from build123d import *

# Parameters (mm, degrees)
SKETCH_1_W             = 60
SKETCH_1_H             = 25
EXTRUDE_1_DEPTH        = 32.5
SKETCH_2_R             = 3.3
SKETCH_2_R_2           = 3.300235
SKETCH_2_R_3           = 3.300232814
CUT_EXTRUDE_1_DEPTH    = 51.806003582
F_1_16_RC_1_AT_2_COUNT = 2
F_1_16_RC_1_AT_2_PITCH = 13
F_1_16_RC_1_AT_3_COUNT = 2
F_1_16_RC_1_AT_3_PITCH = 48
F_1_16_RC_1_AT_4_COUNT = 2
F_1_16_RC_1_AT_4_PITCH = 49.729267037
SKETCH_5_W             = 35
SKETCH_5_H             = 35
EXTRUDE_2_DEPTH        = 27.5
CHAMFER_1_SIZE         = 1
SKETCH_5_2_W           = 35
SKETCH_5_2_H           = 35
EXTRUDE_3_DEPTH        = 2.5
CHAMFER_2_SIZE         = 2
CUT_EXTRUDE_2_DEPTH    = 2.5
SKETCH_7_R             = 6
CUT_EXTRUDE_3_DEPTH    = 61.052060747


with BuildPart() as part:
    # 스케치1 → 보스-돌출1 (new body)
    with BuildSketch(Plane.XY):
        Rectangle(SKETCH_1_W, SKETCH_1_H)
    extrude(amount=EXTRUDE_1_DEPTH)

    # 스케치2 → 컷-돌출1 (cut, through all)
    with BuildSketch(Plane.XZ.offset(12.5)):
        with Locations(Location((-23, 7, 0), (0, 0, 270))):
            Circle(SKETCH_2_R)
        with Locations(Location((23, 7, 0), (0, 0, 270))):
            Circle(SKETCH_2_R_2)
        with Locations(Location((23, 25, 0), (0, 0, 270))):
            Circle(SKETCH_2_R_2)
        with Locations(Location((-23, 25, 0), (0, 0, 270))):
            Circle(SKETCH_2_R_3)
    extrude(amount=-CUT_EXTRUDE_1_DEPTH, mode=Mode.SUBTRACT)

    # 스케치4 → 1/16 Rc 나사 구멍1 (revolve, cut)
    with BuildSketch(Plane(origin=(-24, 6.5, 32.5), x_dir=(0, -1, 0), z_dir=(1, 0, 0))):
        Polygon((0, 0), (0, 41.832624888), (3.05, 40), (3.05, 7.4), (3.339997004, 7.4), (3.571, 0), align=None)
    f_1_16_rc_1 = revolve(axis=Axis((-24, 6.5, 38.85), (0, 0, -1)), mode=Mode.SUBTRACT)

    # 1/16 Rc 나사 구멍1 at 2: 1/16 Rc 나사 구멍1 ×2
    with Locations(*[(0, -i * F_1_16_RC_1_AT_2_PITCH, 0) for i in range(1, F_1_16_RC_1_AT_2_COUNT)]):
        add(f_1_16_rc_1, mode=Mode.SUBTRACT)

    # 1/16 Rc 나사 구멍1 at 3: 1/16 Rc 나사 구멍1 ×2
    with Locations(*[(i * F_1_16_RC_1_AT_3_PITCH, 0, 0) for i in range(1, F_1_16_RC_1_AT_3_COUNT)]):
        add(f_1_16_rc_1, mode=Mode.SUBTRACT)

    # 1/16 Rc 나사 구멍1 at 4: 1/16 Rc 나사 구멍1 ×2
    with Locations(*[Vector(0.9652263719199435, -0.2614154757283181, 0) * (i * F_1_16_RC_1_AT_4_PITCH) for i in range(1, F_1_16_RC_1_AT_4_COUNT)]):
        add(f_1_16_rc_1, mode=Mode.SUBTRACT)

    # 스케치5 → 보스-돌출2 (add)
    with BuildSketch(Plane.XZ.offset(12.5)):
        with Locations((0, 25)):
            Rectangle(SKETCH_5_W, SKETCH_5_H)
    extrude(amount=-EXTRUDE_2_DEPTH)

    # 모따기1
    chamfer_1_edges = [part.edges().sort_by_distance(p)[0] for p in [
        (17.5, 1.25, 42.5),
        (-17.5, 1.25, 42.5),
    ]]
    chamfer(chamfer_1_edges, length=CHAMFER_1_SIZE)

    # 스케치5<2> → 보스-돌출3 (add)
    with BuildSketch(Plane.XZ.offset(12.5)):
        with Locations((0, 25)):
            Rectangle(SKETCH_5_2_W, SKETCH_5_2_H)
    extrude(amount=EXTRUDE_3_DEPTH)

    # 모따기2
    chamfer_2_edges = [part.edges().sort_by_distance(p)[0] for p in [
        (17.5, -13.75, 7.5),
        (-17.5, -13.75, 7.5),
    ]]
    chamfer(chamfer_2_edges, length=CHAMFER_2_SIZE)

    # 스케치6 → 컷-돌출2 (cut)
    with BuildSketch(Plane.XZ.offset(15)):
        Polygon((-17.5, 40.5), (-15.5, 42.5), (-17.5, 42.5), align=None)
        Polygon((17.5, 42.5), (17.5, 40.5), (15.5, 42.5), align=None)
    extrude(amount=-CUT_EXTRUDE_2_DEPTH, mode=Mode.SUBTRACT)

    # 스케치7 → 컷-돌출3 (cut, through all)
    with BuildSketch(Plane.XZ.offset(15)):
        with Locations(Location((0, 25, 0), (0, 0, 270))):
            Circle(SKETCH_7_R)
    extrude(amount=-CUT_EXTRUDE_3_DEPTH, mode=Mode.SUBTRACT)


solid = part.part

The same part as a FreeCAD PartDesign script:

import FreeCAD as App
import Part
import Sketcher
from FreeCAD import Vector
Q = App.Units.Quantity


def edges_at(feature, points):
    """Names of the edges that pass closest to the given points."""
    edges = feature.Shape.Edges
    near = lambda p: min(range(len(edges)), key=lambda i: edges[i].distToShape(Part.Vertex(*p))[0])
    return sorted({f"Edge{near(p) + 1}" for p in points})


def add_polygon(sketch, points):
    """Adds a closed chain of lines whose ends are joined by coincident constraints."""
    first, n = sketch.GeometryCount, len(points)
    for a, b in zip(points, points[1:] + points[:1]):
        sketch.addGeometry(Part.LineSegment(App.Vector(*a, 0), App.Vector(*b, 0)), False)
    for i in range(n):
        sketch.addConstraint(Sketcher.Constraint("Coincident", first + i, 2, first + (i + 1) % n, 1))

doc = App.newDocument("Part")
body = doc.addObject("PartDesign::Body", "Body")

sketch1 = body.newObject("Sketcher::SketchObject", "Sketch")
sketch1.AttachmentSupport = (doc.getObject("XY_Plane"), [""])
sketch1.MapMode = "FlatFace"
add_polygon(sketch1, [(-30, 12), (-30, -12), (30, -12), (30, 12)])
sketch1.addConstraint(Sketcher.Constraint("Vertical", 0))
sketch1.addConstraint(Sketcher.Constraint("Horizontal", 1))
sketch1.addConstraint(Sketcher.Constraint("Vertical", 2))
sketch1.addConstraint(Sketcher.Constraint("Horizontal", 3))
sketch1.addConstraint(Sketcher.Constraint("Symmetric", 0, 2, 2, 2, -1, 1))
sketch1.addConstraint(Sketcher.Constraint("DistanceX", 1, 1, 1, 2, 60.0))
sketch1.addConstraint(Sketcher.Constraint("DistanceY", 0, 2, 0, 1, 25.0))
pad1 = body.newObject("PartDesign::Pad", "Pad")
pad1.Profile = sketch1
pad1.Length = 32.5

sketch2 = body.newObject("Sketcher::SketchObject", "Sketch001")
sketch2.AttachmentSupport = (doc.getObject("XZ_Plane"), [""])
sketch2.MapMode = "FlatFace"
sketch2.AttachmentOffset = App.Placement(Vector(0, 0, 12.5), App.Rotation())
sketch2.addGeometry(Part.Circle(Vector(-23, 7, 0), Vector(0, 0, 1), 3.3), False)
sketch2.addGeometry(Part.Circle(Vector(23, 7, 0), Vector(0, 0, 1), 3.3), False)
sketch2.addGeometry(Part.Circle(Vector(23, 25, 0), Vector(0, 0, 1), 3.3), False)
sketch2.addGeometry(Part.Circle(Vector(-23, 25, 0), Vector(0, 0, 1), 3.3), False)
sketch2.addConstraint(Sketcher.Constraint("Equal", 1, 2))
sketch2.addConstraint(Sketcher.Constraint("Symmetric", 0, 3, 1, 3, -2))
sketch2.addConstraint(Sketcher.Constraint("Symmetric", 2, 3, 3, 3, -2))
sketch2.addConstraint(Sketcher.Constraint("Vertical", 1, 3, 2, 3))
sketch2.addConstraint(Sketcher.Constraint("Diameter", 0, 6.6))
sketch2.addConstraint(Sketcher.Constraint("DistanceX", 0, 3, -1, 1, 23.0))
sketch2.addConstraint(Sketcher.Constraint("DistanceY", -1, 1, 0, 3, 7.0))
sketch2.addConstraint(Sketcher.Constraint("DistanceY", -1, 1, 2, 3, 25.0))
sketch2.addConstraint(Sketcher.Constraint("Diameter", 1, 6.60047))
sketch2.addConstraint(Sketcher.Constraint("Diameter", 3, 6.600466))
pocket1 = body.newObject("PartDesign::Pocket", "Pocket")
pocket1.Profile = sketch2
pocket1.Type = "ThroughAll"

sketch3 = body.newObject("Sketcher::SketchObject", "Sketch002")
sketch3.AttachmentSupport = (doc.getObject("YZ_Plane"), [""])
sketch3.MapMode = "FlatFace"
sketch3.AttachmentOffset = App.Placement(Vector(0, 0, -24), App.Rotation())
add_polygon(sketch3, [(6.5, -9.33), (6.5, 32.5), (2.93, 32.5), (3.16, 25.1), (3.45, 25.1), (3.45, -7.5)])
sketch3.addGeometry(Part.LineSegment(Vector(6.5, 32.5, 0), Vector(6.5, -9.33, 0)), True)
sketch3.addConstraint(Sketcher.Constraint("Vertical", 0))
sketch3.addConstraint(Sketcher.Constraint("Horizontal", 1))
sketch3.addConstraint(Sketcher.Constraint("Horizontal", 3))
sketch3.addConstraint(Sketcher.Constraint("Vertical", 4))
sketch3.addConstraint(Sketcher.Constraint("Vertical", 6))
sketch3.addConstraint(Sketcher.Constraint("Coincident", 6, 1, 0, 2))
sketch3.addConstraint(Sketcher.Constraint("Equal", 0, 6))
sketch3.addConstraint(Sketcher.Constraint("Angle", 5, Q("-31 deg")))
sketch3.addConstraint(Sketcher.Constraint("DistanceY", 4, 2, 4, 1, 32.6))
sketch3.addConstraint(Sketcher.Constraint("DistanceY", 4, 2, 1, 2, 40.0))
sketch3.addConstraint(Sketcher.Constraint("DistanceX", -1, 1, 0, 2, 6.5))
sketch3.addConstraint(Sketcher.Constraint("DistanceY", -1, 1, 0, 2, 32.5))
sketch3.addConstraint(Sketcher.Constraint("DistanceX", 1, 2, 1, 1, 3.571))
sketch3.addConstraint(Sketcher.Constraint("DistanceX", -1, 1, 3, 2, 3.45))
sketch3.addConstraint(Sketcher.Constraint("DistanceX", 3, 1, 3, 2, 0.289997))
groove = body.newObject("PartDesign::Groove", "Groove")
groove.Profile = sketch3
groove.ReferenceAxis = (sketch3, ["Axis0"])
groove.Angle = 360
doc.recompute()

linearpattern = body.newObject("PartDesign::LinearPattern", "LinearPattern")
linearpattern.Originals = [groove]
linearpattern.Direction = (doc.getObject("Y_Axis"), [""])
linearpattern.Mode = "offset"
linearpattern.Offset = 13
linearpattern.Occurrences = 2
linearpattern.Reversed = True
body.Tip = linearpattern
doc.recompute()

linearpattern2 = body.newObject("PartDesign::LinearPattern", "LinearPattern001")
linearpattern2.Originals = [groove]
linearpattern2.Direction = (doc.getObject("X_Axis"), [""])
linearpattern2.Mode = "offset"
linearpattern2.Offset = 48
linearpattern2.Occurrences = 2
body.Tip = linearpattern2
doc.recompute()

datumline = body.newObject("PartDesign::Line", "DatumLine")
datumline.Placement = App.Placement(Vector(0, 0, 0), App.Rotation(Vector(0, 0, 1), Vector(0.965226372, -0.261415476, 0)))
linearpattern3 = body.newObject("PartDesign::LinearPattern", "LinearPattern002")
linearpattern3.Originals = [groove]
linearpattern3.Direction = (datumline, [""])
linearpattern3.Mode = "offset"
linearpattern3.Offset = 49.729267
linearpattern3.Occurrences = 2
body.Tip = linearpattern3

sketch4 = body.newObject("Sketcher::SketchObject", "Sketch003")
sketch4.AttachmentSupport = (doc.getObject("XZ_Plane"), [""])
sketch4.MapMode = "FlatFace"
sketch4.AttachmentOffset = App.Placement(Vector(0, 0, 12.5), App.Rotation())
add_polygon(sketch4, [(-18, 42), (-18, 8), (18, 8), (18, 42)])
sketch4.addConstraint(Sketcher.Constraint("Vertical", 0))
sketch4.addConstraint(Sketcher.Constraint("Horizontal", 1))
sketch4.addConstraint(Sketcher.Constraint("Vertical", 2))
sketch4.addConstraint(Sketcher.Constraint("Horizontal", 3))
sketch4.addConstraint(Sketcher.Constraint("Equal", 3, 0))
sketch4.addConstraint(Sketcher.Constraint("DistanceX", 1, 1, 1, 2, 35.0))
sketch4.addConstraint(Sketcher.Constraint("DistanceX", 0, 2, -1, 1, 17.5))
sketch4.addConstraint(Sketcher.Constraint("DistanceY", -1, 1, 0, 2, 7.5))
pad2 = body.newObject("PartDesign::Pad", "Pad001")
pad2.Profile = sketch4
pad2.Length = 27.5
pad2.Reversed = True
doc.recompute()

chamfer = body.newObject("PartDesign::Chamfer", "Chamfer")
chamfer.Base = (pad2, edges_at(pad2, [(17.5, 1.25, 42.5), (-17.5, 1.25, 42.5)]))
chamfer.Size = 1

sketch5 = body.newObject("Sketcher::SketchObject", "Sketch004")
sketch5.AttachmentSupport = (doc.getObject("XZ_Plane"), [""])
sketch5.MapMode = "FlatFace"
sketch5.AttachmentOffset = App.Placement(Vector(0, 0, 12.5), App.Rotation())
add_polygon(sketch5, [(-18, 42), (-18, 8), (18, 8), (18, 42)])
sketch5.addConstraint(Sketcher.Constraint("Vertical", 0))
sketch5.addConstraint(Sketcher.Constraint("Horizontal", 1))
sketch5.addConstraint(Sketcher.Constraint("Vertical", 2))
sketch5.addConstraint(Sketcher.Constraint("Horizontal", 3))
sketch5.addConstraint(Sketcher.Constraint("Equal", 3, 0))
sketch5.addConstraint(Sketcher.Constraint("DistanceX", 1, 1, 1, 2, 35.0))
sketch5.addConstraint(Sketcher.Constraint("DistanceX", 0, 2, -1, 1, 17.5))
sketch5.addConstraint(Sketcher.Constraint("DistanceY", -1, 1, 0, 2, 7.5))
pad3 = body.newObject("PartDesign::Pad", "Pad002")
pad3.Profile = sketch5
pad3.Length = 2.5
doc.recompute()

chamfer2 = body.newObject("PartDesign::Chamfer", "Chamfer001")
chamfer2.Base = (pad3, edges_at(pad3, [(17.5, -13.75, 7.5), (-17.5, -13.75, 7.5)]))
chamfer2.Size = 2

sketch6 = body.newObject("Sketcher::SketchObject", "Sketch005")
sketch6.AttachmentSupport = (doc.getObject("XZ_Plane"), [""])
sketch6.MapMode = "FlatFace"
sketch6.AttachmentOffset = App.Placement(Vector(0, 0, 15), App.Rotation())
add_polygon(sketch6, [(-17.5, 40.5), (-15.5, 42.5), (-17.5, 42.5)])
add_polygon(sketch6, [(17.5, 40.5), (17.5, 42.5), (15.5, 42.5)])
sketch6.addConstraint(Sketcher.Constraint("Horizontal", 1))
sketch6.addConstraint(Sketcher.Constraint("Vertical", 2))
sketch6.addConstraint(Sketcher.Constraint("Vertical", 3))
sketch6.addConstraint(Sketcher.Constraint("Horizontal", 4))
sketch6.addConstraint(Sketcher.Constraint("Symmetric", 1, 2, 3, 2, -2))
sketch6.addConstraint(Sketcher.Constraint("Perpendicular", 0, 5))
sketch6.addConstraint(Sketcher.Constraint("Horizontal", 2, 2, 5, 2))
sketch6.addConstraint(Sketcher.Constraint("Equal", 1, 4))
sketch6.addConstraint(Sketcher.Constraint("DistanceX", 1, 2, 1, 1, 2.0))
sketch6.addConstraint(Sketcher.Constraint("DistanceX", 0, 2, 3, 2, 33.0))
sketch6.addConstraint(Sketcher.Constraint("DistanceY", -1, 1, 0, 2, 42.5))
pocket2 = body.newObject("PartDesign::Pocket", "Pocket001")
pocket2.Profile = sketch6
pocket2.Length = 2.5

sketch7 = body.newObject("Sketcher::SketchObject", "Sketch006")
sketch7.AttachmentSupport = (doc.getObject("XZ_Plane"), [""])
sketch7.MapMode = "FlatFace"
sketch7.AttachmentOffset = App.Placement(Vector(0, 0, 15), App.Rotation())
sketch7.addGeometry(Part.Circle(Vector(0, 25, 0), Vector(0, 0, 1), 6), False)
sketch7.addConstraint(Sketcher.Constraint("PointOnObject", 0, 3, -2))
sketch7.addConstraint(Sketcher.Constraint("Diameter", 0, 12.0))
sketch7.addConstraint(Sketcher.Constraint("DistanceY", -1, 1, 0, 3, 25.0))
pocket3 = body.newObject("PartDesign::Pocket", "Pocket002")
pocket3.Profile = sketch7
pocket3.Type = "ThroughAll"

doc.recompute()
